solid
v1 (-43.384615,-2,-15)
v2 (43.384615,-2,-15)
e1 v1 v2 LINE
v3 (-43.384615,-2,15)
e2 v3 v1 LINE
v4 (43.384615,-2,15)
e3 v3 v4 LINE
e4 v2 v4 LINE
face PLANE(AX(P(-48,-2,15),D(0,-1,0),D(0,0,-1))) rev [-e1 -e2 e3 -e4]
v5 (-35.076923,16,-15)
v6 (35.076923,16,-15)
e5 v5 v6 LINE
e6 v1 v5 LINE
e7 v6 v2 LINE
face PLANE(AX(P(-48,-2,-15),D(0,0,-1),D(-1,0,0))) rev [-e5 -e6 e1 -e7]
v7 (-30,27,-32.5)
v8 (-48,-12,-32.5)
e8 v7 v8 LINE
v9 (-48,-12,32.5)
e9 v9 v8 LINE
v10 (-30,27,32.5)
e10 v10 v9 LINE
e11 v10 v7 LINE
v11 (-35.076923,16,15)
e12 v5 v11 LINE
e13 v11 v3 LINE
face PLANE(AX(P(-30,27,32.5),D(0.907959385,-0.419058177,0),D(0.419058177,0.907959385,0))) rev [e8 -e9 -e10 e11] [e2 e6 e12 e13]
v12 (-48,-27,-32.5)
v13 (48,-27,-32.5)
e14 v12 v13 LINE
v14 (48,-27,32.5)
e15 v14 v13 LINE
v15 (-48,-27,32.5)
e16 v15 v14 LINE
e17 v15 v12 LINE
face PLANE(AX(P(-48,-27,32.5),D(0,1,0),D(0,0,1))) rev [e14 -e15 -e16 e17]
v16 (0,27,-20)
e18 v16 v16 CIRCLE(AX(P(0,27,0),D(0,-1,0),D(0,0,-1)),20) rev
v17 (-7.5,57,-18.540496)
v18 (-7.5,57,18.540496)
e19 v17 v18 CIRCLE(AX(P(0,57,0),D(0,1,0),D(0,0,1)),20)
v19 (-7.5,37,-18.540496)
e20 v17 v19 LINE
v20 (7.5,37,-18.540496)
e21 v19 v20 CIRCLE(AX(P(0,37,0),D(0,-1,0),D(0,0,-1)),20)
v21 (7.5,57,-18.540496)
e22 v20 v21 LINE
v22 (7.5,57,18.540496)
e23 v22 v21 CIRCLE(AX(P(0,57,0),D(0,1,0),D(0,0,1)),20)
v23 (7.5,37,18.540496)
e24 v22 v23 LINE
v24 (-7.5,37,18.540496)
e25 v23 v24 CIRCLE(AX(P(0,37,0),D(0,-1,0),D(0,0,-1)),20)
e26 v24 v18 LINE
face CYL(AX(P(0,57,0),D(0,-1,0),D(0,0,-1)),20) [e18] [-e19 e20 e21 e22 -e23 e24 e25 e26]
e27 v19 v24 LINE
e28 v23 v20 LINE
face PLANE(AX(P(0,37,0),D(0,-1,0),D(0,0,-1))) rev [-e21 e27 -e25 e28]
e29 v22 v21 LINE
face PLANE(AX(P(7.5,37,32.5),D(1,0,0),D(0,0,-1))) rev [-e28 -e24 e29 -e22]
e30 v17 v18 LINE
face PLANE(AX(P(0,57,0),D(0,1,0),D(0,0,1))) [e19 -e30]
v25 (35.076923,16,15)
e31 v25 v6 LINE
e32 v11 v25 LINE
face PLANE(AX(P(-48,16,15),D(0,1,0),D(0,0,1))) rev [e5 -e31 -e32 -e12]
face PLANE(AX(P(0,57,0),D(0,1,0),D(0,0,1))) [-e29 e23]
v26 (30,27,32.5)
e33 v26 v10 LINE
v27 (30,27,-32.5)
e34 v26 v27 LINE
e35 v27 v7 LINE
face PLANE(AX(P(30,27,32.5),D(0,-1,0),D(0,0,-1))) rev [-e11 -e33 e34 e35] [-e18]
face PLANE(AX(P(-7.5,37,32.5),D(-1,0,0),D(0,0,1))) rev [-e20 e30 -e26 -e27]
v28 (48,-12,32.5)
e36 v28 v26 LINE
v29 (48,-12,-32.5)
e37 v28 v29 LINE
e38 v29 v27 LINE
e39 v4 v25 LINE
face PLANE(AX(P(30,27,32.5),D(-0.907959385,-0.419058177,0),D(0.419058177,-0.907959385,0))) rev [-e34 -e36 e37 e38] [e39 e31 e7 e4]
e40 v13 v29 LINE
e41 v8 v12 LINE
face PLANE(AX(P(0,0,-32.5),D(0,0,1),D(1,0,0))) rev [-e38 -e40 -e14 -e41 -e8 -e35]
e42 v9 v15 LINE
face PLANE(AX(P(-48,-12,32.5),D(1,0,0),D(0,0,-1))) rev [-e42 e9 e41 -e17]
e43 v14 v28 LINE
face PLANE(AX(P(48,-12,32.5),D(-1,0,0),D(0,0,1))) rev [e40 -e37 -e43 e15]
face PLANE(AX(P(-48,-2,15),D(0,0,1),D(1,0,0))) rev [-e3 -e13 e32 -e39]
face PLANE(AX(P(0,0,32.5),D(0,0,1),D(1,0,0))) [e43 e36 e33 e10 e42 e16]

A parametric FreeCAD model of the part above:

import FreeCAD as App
import Part
import Sketcher
Q = App.Units.Quantity

doc = App.newDocument("Part")
body = doc.addObject("PartDesign::Body", "Body")

# Sketch on XY plane
sketch1 = doc.addObject("Sketcher::SketchObject", "Sketch")
body.addObject(sketch1)
sketch1.AttachmentSupport = (doc.XY_Plane, [""])
sketch1.MapMode = "FlatFace"
sketch1.addGeometry(Part.LineSegment(App.Vector(-30, 27, 0), App.Vector(-48, -12, 0)), False)
sketch1.addGeometry(Part.LineSegment(App.Vector(-48, -12, 0), App.Vector(-48, -27, 0)), False)
sketch1.addGeometry(Part.LineSegment(App.Vector(-48, -27, 0), App.Vector(48, -27, 0)), False)
sketch1.addGeometry(Part.LineSegment(App.Vector(48, -27, 0), App.Vector(48, -12, 0)), False)
sketch1.addGeometry(Part.LineSegment(App.Vector(48, -12, 0), App.Vector(30, 27, 0)), False)
sketch1.addGeometry(Part.LineSegment(App.Vector(30, 27, 0), App.Vector(-30, 27, 0)), False)
sketch1.addConstraint(Sketcher.Constraint("Coincident", 0, 2, 1, 1))
sketch1.addConstraint(Sketcher.Constraint("Coincident", 1, 2, 2, 1))
sketch1.addConstraint(Sketcher.Constraint("Coincident", 2, 2, 3, 1))
sketch1.addConstraint(Sketcher.Constraint("Coincident", 3, 2, 4, 1))
sketch1.addConstraint(Sketcher.Constraint("Coincident", 4, 2, 5, 1))
sketch1.addConstraint(Sketcher.Constraint("Coincident", 5, 2, 0, 1))
sketch1.addConstraint(Sketcher.Constraint("Vertical", 1))
sketch1.addConstraint(Sketcher.Constraint("Horizontal", 2))
sketch1.addConstraint(Sketcher.Constraint("Vertical", 3))
sketch1.addConstraint(Sketcher.Constraint("Horizontal", 5))
sketch1.addConstraint(Sketcher.Constraint("Symmetric", 0, 2, 3, 2, -2))
sketch1.addConstraint(Sketcher.Constraint("Equal", 0, 4))
sketch1.addConstraint(Sketcher.Constraint("DistanceX", 2, 1, 2, 2, Q("96 mm")))
sketch1.addConstraint(Sketcher.Constraint("DistanceX", 5, 2, 5, 1, Q("60 mm")))
sketch1.addConstraint(Sketcher.Constraint("DistanceY", 1, 2, 1, 1, Q("15 mm")))
sketch1.addConstraint(Sketcher.Constraint("DistanceY", 0, 2, -1, 1, Q("12 mm")))
sketch1.addConstraint(Sketcher.Constraint("DistanceY", -1, 1, 4, 2, Q("27 mm")))
pad1 = doc.addObject("PartDesign::Pad", "Pad")
body.addObject(pad1)
pad1.Profile = sketch1
pad1.Length = 65
pad1.Midplane = True

# Sketch on YZ plane
sketch2 = doc.addObject("Sketcher::SketchObject", "Sketch001")
body.addObject(sketch2)
sketch2.AttachmentSupport = (doc.YZ_Plane, [""])
sketch2.MapMode = "FlatFace"
sketch2.addGeometry(Part.LineSegment(App.Vector(16, 15, 0), App.Vector(-2, 15, 0)), False)
sketch2.addGeometry(Part.LineSegment(App.Vector(-2, 15, 0), App.Vector(-2, -15, 0)), False)
sketch2.addGeometry(Part.LineSegment(App.Vector(-2, -15, 0), App.Vector(16, -15, 0)), False)
sketch2.addGeometry(Part.LineSegment(App.Vector(16, -15, 0), App.Vector(16, 15, 0)), False)
sketch2.addConstraint(Sketcher.Constraint("Coincident", 0, 2, 1, 1))
sketch2.addConstraint(Sketcher.Constraint("Coincident", 1, 2, 2, 1))
sketch2.addConstraint(Sketcher.Constraint("Coincident", 2, 2, 3, 1))
sketch2.addConstraint(Sketcher.Constraint("Coincident", 3, 2, 0, 1))
sketch2.addConstraint(Sketcher.Constraint("Horizontal", 0))
sketch2.addConstraint(Sketcher.Constraint("Vertical", 1))
sketch2.addConstraint(Sketcher.Constraint("Horizontal", 2))
sketch2.addConstraint(Sketcher.Constraint("Vertical", 3))
sketch2.addConstraint(Sketcher.Constraint("DistanceX", 0, 2, 0, 1, Q("18 mm")))
sketch2.addConstraint(Sketcher.Constraint("DistanceY", 1, 2, 1, 1, Q("30 mm")))
sketch2.addConstraint(Sketcher.Constraint("DistanceX", 0, 2, -1, 1, Q("2 mm")))
sketch2.addConstraint(Sketcher.Constraint("DistanceY", -1, 1, 0, 2, Q("15 mm")))
pocket1 = doc.addObject("PartDesign::Pocket", "Pocket")
body.addObject(pocket1)
pocket1.Profile = sketch2
pocket1.Type = "ThroughAll"
pocket1.Midplane = True

# Sketch on XZ plane
sketch3 = doc.addObject("Sketcher::SketchObject", "Sketch002")
body.addObject(sketch3)
sketch3.AttachmentSupport = (doc.XZ_Plane, [""])
sketch3.MapMode = "FlatFace"
sketch3.AttachmentOffset = App.Placement(App.Vector(0, 0, -27), App.Rotation())
sketch3.addGeometry(Part.Circle(App.Vector(0, 0, 0), App.Vector(0, 0, 1), 20), False)
sketch3.addConstraint(Sketcher.Constraint("Coincident", 0, 3, -1, 1))
sketch3.addConstraint(Sketcher.Constraint("Diameter", 0, Q("40 mm")))
pad2 = doc.addObject("PartDesign::Pad", "Pad001")
body.addObject(pad2)
pad2.Profile = sketch3
pad2.Length = 30
pad2.Reversed = True

# Sketch on XZ plane
sketch4 = doc.addObject("Sketcher::SketchObject", "Sketch003")
body.addObject(sketch4)
sketch4.AttachmentSupport = (doc.XZ_Plane, [""])
sketch4.MapMode = "FlatFace"
sketch4.AttachmentOffset = App.Placement(App.Vector(0, 0, -57), App.Rotation())
sketch4.addGeometry(Part.LineSegment(App.Vector(-7.5, -32.5, 0), App.Vector(-7.5, 32.5, 0)), False)
sketch4.addGeometry(Part.LineSegment(App.Vector(-7.5, 32.5, 0), App.Vector(7.5, 32.5, 0)), False)
sketch4.addGeometry(Part.LineSegment(App.Vector(7.5, 32.5, 0), App.Vector(7.5, -32.5, 0)), False)
sketch4.addGeometry(Part.LineSegment(App.Vector(7.5, -32.5, 0), App.Vector(-7.5, -32.5, 0)), False)
sketch4.addConstraint(Sketcher.Constraint("Coincident", 0, 2, 1, 1))
sketch4.addConstraint(Sketcher.Constraint("Coincident", 1, 2, 2, 1))
sketch4.addConstraint(Sketcher.Constraint("Coincident", 2, 2, 3, 1))
sketch4.addConstraint(Sketcher.Constraint("Coincident", 3, 2, 0, 1))
sketch4.addConstraint(Sketcher.Constraint("Vertical", 0))
sketch4.addConstraint(Sketcher.Constraint("Horizontal", 1))
sketch4.addConstraint(Sketcher.Constraint("Vertical", 2))
sketch4.addConstraint(Sketcher.Constraint("Horizontal", 3))
sketch4.addConstraint(Sketcher.Constraint("Symmetric", 0, 2, 2, 2, -1, 1))
sketch4.addConstraint(Sketcher.Constraint("DistanceX", 1, 1, 1, 2, Q("15 mm")))
sketch4.addConstraint(Sketcher.Constraint("DistanceY", 0, 1, 0, 2, Q("65 mm")))
pocket2 = doc.addObject("PartDesign::Pocket", "Pocket001")
body.addObject(pocket2)
pocket2.Profile = sketch4
pocket2.Length = 20
pocket2.Reversed = True

doc.recompute()
